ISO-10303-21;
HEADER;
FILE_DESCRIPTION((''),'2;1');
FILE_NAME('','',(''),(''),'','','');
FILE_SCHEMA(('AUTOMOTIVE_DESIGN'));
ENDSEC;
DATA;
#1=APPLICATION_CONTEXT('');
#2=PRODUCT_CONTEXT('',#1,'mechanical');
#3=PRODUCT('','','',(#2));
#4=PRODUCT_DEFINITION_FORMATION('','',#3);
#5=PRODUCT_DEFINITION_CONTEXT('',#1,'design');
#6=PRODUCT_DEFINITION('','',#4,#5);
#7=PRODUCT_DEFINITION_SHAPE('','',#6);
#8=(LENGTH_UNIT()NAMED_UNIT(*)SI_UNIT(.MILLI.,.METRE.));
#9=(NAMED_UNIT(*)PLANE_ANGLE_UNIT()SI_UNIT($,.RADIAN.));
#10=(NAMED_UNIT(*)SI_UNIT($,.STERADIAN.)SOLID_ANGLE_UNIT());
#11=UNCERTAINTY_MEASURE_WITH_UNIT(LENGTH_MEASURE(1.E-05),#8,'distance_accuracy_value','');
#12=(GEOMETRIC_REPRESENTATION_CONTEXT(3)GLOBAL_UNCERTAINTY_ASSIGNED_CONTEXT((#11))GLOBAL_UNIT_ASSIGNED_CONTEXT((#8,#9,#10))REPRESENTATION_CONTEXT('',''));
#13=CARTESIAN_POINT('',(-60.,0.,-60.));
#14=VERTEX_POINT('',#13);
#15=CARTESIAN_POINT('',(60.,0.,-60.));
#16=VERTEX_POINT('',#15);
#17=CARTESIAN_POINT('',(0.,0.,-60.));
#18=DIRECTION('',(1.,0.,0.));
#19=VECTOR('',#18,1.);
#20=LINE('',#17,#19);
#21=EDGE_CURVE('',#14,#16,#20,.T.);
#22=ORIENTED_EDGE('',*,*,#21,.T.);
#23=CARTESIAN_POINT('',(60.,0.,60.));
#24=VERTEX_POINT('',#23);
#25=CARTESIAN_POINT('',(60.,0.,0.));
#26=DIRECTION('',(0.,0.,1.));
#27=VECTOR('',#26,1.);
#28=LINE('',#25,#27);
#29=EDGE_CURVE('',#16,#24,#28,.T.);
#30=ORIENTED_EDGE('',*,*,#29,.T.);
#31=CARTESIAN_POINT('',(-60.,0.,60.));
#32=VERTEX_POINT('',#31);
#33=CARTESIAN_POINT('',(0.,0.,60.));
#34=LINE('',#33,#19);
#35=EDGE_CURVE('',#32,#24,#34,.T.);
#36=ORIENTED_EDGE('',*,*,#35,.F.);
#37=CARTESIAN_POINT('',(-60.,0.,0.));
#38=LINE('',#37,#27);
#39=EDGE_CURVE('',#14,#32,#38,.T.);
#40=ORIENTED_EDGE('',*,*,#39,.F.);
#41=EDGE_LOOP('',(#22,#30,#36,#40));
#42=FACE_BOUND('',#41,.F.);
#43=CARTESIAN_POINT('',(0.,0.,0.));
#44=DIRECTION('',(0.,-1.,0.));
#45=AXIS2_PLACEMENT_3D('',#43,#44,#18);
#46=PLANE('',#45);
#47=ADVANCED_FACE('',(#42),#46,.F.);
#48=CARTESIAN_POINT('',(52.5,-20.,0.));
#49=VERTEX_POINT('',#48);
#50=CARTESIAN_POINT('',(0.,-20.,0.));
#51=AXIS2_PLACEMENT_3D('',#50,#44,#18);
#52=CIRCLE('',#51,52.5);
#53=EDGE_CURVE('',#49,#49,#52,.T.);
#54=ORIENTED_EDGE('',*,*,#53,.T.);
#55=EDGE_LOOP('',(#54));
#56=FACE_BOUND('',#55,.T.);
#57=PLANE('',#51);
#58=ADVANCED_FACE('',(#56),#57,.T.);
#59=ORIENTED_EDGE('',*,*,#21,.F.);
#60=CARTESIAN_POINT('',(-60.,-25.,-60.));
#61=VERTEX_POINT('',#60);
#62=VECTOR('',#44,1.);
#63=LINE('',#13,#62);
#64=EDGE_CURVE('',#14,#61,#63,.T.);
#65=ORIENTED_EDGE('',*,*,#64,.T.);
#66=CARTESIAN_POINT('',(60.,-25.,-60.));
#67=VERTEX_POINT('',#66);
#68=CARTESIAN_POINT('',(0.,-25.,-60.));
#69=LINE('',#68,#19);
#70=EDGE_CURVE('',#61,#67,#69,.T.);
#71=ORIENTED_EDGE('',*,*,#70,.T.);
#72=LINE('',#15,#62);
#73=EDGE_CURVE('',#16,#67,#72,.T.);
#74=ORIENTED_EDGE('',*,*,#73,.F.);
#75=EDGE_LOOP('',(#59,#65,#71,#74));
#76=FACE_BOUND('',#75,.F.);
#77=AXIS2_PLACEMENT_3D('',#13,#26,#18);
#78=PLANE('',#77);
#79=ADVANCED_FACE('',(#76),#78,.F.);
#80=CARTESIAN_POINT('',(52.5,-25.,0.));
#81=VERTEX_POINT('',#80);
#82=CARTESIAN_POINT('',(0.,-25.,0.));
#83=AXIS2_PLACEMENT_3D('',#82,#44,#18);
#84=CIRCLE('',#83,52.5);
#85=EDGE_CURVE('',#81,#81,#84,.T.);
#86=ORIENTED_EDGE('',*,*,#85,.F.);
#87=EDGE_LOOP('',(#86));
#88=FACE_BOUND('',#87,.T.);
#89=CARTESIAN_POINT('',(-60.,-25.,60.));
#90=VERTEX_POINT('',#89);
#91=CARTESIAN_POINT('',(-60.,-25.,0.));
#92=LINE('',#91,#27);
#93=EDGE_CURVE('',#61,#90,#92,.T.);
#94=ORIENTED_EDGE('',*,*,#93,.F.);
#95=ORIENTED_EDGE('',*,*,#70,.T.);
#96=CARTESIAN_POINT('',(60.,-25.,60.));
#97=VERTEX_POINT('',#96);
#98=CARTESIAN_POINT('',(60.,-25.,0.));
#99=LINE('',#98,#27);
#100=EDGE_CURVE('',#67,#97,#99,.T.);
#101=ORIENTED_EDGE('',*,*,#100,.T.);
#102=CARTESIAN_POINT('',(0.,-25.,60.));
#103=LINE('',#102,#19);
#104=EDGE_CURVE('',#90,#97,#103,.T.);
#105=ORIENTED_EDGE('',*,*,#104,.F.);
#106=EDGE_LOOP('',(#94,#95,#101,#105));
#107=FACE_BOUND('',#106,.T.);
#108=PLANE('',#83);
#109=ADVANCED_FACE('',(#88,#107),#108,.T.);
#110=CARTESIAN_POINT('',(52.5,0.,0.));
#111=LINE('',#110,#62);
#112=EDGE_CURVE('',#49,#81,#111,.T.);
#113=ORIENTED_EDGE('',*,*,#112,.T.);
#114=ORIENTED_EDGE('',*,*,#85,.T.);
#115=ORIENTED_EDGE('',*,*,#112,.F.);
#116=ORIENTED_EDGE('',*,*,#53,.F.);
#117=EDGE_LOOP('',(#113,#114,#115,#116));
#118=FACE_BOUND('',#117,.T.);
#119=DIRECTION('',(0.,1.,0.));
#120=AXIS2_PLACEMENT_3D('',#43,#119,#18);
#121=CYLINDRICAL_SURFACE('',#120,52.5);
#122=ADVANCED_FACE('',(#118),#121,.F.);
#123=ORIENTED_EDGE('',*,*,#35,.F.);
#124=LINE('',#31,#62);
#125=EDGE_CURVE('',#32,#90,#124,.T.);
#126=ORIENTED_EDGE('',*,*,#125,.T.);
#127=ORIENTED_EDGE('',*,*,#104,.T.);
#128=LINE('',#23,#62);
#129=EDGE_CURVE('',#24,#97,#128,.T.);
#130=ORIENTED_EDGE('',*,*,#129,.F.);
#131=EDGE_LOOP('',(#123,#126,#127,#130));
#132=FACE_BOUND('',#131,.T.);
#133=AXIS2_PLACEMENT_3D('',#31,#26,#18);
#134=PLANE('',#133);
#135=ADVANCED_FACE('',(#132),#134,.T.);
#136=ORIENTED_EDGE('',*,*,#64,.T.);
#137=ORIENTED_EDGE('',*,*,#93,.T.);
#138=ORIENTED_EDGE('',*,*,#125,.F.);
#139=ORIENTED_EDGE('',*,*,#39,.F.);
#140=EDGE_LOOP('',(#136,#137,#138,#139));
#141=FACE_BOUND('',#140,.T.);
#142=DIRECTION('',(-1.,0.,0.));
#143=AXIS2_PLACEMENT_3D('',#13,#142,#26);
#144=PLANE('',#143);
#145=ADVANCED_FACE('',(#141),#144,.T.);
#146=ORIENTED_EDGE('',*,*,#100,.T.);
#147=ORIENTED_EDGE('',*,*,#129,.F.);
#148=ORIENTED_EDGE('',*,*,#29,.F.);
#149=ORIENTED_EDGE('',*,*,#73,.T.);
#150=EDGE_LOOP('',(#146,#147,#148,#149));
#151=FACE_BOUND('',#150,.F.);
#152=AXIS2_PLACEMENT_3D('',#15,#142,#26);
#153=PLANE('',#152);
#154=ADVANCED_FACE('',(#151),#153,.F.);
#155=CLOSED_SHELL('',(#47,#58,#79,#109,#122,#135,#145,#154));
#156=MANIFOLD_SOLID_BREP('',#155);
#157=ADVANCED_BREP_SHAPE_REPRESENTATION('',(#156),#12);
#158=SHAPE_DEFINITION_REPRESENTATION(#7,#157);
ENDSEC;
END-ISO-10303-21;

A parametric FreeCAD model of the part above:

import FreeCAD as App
import Part
import Sketcher
Q = App.Units.Quantity


def add_polygon(sketch, points):
    """Adds a closed chain of lines whose ends are joined by coincident constraints."""
    first, n = sketch.GeometryCount, len(points)
    for a, b in zip(points, points[1:] + points[:1]):
        sketch.addGeometry(Part.LineSegment(App.Vector(*a, 0), App.Vector(*b, 0)), False)
    for i in range(n):
        sketch.addConstraint(Sketcher.Constraint("Coincident", first + i, 2, first + (i + 1) % n, 1))

doc = App.newDocument("Part")
body = doc.addObject("PartDesign::Body", "Body")

sketch1 = body.newObject("Sketcher::SketchObject", "Sketch")
sketch1.AttachmentSupport = (doc.getObject("XZ_Plane"), [""])
sketch1.MapMode = "FlatFace"
add_polygon(sketch1, [(-60, 60), (-60, -60), (60, -60), (60, 60)])
sketch1.addGeometry(Part.Circle(App.Vector(0, 0, 0), App.Vector(0, 0, 1), 52.5), False)
sketch1.addConstraint([
    Sketcher.Constraint("Vertical", 0),
    Sketcher.Constraint("Horizontal", 1),
    Sketcher.Constraint("Vertical", 2),
    Sketcher.Constraint("Horizontal", 3),
    Sketcher.Constraint("Coincident", 4, 3, -1, 1),
    Sketcher.Constraint("Symmetric", 0, 2, 2, 2, -1, 1),
    Sketcher.Constraint("Equal", 3, 0),
    Sketcher.Constraint("Diameter", 4, Q("105 mm")),
    Sketcher.Constraint("DistanceX", 1, 1, 1, 2, Q("120 mm")),
])
pad1 = body.newObject("PartDesign::Pad", "Pad")
pad1.Profile = sketch1
pad1.Length = 25

sketch2 = body.newObject("Sketcher::SketchObject", "Sketch001")
sketch2.AttachmentSupport = (doc.getObject("XZ_Plane"), [""])
sketch2.MapMode = "FlatFace"
sketch2.addGeometry(Part.Circle(App.Vector(0, 0, 0), App.Vector(0, 0, 1), 52.5), False)
sketch2.addConstraint([
    Sketcher.Constraint("Coincident", 0, 3, -1, 1),
    Sketcher.Constraint("Diameter", 0, Q("105 mm")),
])
pad2 = body.newObject("PartDesign::Pad", "Pad001")
pad2.Profile = sketch2
pad2.Length = 20

doc.recompute()
